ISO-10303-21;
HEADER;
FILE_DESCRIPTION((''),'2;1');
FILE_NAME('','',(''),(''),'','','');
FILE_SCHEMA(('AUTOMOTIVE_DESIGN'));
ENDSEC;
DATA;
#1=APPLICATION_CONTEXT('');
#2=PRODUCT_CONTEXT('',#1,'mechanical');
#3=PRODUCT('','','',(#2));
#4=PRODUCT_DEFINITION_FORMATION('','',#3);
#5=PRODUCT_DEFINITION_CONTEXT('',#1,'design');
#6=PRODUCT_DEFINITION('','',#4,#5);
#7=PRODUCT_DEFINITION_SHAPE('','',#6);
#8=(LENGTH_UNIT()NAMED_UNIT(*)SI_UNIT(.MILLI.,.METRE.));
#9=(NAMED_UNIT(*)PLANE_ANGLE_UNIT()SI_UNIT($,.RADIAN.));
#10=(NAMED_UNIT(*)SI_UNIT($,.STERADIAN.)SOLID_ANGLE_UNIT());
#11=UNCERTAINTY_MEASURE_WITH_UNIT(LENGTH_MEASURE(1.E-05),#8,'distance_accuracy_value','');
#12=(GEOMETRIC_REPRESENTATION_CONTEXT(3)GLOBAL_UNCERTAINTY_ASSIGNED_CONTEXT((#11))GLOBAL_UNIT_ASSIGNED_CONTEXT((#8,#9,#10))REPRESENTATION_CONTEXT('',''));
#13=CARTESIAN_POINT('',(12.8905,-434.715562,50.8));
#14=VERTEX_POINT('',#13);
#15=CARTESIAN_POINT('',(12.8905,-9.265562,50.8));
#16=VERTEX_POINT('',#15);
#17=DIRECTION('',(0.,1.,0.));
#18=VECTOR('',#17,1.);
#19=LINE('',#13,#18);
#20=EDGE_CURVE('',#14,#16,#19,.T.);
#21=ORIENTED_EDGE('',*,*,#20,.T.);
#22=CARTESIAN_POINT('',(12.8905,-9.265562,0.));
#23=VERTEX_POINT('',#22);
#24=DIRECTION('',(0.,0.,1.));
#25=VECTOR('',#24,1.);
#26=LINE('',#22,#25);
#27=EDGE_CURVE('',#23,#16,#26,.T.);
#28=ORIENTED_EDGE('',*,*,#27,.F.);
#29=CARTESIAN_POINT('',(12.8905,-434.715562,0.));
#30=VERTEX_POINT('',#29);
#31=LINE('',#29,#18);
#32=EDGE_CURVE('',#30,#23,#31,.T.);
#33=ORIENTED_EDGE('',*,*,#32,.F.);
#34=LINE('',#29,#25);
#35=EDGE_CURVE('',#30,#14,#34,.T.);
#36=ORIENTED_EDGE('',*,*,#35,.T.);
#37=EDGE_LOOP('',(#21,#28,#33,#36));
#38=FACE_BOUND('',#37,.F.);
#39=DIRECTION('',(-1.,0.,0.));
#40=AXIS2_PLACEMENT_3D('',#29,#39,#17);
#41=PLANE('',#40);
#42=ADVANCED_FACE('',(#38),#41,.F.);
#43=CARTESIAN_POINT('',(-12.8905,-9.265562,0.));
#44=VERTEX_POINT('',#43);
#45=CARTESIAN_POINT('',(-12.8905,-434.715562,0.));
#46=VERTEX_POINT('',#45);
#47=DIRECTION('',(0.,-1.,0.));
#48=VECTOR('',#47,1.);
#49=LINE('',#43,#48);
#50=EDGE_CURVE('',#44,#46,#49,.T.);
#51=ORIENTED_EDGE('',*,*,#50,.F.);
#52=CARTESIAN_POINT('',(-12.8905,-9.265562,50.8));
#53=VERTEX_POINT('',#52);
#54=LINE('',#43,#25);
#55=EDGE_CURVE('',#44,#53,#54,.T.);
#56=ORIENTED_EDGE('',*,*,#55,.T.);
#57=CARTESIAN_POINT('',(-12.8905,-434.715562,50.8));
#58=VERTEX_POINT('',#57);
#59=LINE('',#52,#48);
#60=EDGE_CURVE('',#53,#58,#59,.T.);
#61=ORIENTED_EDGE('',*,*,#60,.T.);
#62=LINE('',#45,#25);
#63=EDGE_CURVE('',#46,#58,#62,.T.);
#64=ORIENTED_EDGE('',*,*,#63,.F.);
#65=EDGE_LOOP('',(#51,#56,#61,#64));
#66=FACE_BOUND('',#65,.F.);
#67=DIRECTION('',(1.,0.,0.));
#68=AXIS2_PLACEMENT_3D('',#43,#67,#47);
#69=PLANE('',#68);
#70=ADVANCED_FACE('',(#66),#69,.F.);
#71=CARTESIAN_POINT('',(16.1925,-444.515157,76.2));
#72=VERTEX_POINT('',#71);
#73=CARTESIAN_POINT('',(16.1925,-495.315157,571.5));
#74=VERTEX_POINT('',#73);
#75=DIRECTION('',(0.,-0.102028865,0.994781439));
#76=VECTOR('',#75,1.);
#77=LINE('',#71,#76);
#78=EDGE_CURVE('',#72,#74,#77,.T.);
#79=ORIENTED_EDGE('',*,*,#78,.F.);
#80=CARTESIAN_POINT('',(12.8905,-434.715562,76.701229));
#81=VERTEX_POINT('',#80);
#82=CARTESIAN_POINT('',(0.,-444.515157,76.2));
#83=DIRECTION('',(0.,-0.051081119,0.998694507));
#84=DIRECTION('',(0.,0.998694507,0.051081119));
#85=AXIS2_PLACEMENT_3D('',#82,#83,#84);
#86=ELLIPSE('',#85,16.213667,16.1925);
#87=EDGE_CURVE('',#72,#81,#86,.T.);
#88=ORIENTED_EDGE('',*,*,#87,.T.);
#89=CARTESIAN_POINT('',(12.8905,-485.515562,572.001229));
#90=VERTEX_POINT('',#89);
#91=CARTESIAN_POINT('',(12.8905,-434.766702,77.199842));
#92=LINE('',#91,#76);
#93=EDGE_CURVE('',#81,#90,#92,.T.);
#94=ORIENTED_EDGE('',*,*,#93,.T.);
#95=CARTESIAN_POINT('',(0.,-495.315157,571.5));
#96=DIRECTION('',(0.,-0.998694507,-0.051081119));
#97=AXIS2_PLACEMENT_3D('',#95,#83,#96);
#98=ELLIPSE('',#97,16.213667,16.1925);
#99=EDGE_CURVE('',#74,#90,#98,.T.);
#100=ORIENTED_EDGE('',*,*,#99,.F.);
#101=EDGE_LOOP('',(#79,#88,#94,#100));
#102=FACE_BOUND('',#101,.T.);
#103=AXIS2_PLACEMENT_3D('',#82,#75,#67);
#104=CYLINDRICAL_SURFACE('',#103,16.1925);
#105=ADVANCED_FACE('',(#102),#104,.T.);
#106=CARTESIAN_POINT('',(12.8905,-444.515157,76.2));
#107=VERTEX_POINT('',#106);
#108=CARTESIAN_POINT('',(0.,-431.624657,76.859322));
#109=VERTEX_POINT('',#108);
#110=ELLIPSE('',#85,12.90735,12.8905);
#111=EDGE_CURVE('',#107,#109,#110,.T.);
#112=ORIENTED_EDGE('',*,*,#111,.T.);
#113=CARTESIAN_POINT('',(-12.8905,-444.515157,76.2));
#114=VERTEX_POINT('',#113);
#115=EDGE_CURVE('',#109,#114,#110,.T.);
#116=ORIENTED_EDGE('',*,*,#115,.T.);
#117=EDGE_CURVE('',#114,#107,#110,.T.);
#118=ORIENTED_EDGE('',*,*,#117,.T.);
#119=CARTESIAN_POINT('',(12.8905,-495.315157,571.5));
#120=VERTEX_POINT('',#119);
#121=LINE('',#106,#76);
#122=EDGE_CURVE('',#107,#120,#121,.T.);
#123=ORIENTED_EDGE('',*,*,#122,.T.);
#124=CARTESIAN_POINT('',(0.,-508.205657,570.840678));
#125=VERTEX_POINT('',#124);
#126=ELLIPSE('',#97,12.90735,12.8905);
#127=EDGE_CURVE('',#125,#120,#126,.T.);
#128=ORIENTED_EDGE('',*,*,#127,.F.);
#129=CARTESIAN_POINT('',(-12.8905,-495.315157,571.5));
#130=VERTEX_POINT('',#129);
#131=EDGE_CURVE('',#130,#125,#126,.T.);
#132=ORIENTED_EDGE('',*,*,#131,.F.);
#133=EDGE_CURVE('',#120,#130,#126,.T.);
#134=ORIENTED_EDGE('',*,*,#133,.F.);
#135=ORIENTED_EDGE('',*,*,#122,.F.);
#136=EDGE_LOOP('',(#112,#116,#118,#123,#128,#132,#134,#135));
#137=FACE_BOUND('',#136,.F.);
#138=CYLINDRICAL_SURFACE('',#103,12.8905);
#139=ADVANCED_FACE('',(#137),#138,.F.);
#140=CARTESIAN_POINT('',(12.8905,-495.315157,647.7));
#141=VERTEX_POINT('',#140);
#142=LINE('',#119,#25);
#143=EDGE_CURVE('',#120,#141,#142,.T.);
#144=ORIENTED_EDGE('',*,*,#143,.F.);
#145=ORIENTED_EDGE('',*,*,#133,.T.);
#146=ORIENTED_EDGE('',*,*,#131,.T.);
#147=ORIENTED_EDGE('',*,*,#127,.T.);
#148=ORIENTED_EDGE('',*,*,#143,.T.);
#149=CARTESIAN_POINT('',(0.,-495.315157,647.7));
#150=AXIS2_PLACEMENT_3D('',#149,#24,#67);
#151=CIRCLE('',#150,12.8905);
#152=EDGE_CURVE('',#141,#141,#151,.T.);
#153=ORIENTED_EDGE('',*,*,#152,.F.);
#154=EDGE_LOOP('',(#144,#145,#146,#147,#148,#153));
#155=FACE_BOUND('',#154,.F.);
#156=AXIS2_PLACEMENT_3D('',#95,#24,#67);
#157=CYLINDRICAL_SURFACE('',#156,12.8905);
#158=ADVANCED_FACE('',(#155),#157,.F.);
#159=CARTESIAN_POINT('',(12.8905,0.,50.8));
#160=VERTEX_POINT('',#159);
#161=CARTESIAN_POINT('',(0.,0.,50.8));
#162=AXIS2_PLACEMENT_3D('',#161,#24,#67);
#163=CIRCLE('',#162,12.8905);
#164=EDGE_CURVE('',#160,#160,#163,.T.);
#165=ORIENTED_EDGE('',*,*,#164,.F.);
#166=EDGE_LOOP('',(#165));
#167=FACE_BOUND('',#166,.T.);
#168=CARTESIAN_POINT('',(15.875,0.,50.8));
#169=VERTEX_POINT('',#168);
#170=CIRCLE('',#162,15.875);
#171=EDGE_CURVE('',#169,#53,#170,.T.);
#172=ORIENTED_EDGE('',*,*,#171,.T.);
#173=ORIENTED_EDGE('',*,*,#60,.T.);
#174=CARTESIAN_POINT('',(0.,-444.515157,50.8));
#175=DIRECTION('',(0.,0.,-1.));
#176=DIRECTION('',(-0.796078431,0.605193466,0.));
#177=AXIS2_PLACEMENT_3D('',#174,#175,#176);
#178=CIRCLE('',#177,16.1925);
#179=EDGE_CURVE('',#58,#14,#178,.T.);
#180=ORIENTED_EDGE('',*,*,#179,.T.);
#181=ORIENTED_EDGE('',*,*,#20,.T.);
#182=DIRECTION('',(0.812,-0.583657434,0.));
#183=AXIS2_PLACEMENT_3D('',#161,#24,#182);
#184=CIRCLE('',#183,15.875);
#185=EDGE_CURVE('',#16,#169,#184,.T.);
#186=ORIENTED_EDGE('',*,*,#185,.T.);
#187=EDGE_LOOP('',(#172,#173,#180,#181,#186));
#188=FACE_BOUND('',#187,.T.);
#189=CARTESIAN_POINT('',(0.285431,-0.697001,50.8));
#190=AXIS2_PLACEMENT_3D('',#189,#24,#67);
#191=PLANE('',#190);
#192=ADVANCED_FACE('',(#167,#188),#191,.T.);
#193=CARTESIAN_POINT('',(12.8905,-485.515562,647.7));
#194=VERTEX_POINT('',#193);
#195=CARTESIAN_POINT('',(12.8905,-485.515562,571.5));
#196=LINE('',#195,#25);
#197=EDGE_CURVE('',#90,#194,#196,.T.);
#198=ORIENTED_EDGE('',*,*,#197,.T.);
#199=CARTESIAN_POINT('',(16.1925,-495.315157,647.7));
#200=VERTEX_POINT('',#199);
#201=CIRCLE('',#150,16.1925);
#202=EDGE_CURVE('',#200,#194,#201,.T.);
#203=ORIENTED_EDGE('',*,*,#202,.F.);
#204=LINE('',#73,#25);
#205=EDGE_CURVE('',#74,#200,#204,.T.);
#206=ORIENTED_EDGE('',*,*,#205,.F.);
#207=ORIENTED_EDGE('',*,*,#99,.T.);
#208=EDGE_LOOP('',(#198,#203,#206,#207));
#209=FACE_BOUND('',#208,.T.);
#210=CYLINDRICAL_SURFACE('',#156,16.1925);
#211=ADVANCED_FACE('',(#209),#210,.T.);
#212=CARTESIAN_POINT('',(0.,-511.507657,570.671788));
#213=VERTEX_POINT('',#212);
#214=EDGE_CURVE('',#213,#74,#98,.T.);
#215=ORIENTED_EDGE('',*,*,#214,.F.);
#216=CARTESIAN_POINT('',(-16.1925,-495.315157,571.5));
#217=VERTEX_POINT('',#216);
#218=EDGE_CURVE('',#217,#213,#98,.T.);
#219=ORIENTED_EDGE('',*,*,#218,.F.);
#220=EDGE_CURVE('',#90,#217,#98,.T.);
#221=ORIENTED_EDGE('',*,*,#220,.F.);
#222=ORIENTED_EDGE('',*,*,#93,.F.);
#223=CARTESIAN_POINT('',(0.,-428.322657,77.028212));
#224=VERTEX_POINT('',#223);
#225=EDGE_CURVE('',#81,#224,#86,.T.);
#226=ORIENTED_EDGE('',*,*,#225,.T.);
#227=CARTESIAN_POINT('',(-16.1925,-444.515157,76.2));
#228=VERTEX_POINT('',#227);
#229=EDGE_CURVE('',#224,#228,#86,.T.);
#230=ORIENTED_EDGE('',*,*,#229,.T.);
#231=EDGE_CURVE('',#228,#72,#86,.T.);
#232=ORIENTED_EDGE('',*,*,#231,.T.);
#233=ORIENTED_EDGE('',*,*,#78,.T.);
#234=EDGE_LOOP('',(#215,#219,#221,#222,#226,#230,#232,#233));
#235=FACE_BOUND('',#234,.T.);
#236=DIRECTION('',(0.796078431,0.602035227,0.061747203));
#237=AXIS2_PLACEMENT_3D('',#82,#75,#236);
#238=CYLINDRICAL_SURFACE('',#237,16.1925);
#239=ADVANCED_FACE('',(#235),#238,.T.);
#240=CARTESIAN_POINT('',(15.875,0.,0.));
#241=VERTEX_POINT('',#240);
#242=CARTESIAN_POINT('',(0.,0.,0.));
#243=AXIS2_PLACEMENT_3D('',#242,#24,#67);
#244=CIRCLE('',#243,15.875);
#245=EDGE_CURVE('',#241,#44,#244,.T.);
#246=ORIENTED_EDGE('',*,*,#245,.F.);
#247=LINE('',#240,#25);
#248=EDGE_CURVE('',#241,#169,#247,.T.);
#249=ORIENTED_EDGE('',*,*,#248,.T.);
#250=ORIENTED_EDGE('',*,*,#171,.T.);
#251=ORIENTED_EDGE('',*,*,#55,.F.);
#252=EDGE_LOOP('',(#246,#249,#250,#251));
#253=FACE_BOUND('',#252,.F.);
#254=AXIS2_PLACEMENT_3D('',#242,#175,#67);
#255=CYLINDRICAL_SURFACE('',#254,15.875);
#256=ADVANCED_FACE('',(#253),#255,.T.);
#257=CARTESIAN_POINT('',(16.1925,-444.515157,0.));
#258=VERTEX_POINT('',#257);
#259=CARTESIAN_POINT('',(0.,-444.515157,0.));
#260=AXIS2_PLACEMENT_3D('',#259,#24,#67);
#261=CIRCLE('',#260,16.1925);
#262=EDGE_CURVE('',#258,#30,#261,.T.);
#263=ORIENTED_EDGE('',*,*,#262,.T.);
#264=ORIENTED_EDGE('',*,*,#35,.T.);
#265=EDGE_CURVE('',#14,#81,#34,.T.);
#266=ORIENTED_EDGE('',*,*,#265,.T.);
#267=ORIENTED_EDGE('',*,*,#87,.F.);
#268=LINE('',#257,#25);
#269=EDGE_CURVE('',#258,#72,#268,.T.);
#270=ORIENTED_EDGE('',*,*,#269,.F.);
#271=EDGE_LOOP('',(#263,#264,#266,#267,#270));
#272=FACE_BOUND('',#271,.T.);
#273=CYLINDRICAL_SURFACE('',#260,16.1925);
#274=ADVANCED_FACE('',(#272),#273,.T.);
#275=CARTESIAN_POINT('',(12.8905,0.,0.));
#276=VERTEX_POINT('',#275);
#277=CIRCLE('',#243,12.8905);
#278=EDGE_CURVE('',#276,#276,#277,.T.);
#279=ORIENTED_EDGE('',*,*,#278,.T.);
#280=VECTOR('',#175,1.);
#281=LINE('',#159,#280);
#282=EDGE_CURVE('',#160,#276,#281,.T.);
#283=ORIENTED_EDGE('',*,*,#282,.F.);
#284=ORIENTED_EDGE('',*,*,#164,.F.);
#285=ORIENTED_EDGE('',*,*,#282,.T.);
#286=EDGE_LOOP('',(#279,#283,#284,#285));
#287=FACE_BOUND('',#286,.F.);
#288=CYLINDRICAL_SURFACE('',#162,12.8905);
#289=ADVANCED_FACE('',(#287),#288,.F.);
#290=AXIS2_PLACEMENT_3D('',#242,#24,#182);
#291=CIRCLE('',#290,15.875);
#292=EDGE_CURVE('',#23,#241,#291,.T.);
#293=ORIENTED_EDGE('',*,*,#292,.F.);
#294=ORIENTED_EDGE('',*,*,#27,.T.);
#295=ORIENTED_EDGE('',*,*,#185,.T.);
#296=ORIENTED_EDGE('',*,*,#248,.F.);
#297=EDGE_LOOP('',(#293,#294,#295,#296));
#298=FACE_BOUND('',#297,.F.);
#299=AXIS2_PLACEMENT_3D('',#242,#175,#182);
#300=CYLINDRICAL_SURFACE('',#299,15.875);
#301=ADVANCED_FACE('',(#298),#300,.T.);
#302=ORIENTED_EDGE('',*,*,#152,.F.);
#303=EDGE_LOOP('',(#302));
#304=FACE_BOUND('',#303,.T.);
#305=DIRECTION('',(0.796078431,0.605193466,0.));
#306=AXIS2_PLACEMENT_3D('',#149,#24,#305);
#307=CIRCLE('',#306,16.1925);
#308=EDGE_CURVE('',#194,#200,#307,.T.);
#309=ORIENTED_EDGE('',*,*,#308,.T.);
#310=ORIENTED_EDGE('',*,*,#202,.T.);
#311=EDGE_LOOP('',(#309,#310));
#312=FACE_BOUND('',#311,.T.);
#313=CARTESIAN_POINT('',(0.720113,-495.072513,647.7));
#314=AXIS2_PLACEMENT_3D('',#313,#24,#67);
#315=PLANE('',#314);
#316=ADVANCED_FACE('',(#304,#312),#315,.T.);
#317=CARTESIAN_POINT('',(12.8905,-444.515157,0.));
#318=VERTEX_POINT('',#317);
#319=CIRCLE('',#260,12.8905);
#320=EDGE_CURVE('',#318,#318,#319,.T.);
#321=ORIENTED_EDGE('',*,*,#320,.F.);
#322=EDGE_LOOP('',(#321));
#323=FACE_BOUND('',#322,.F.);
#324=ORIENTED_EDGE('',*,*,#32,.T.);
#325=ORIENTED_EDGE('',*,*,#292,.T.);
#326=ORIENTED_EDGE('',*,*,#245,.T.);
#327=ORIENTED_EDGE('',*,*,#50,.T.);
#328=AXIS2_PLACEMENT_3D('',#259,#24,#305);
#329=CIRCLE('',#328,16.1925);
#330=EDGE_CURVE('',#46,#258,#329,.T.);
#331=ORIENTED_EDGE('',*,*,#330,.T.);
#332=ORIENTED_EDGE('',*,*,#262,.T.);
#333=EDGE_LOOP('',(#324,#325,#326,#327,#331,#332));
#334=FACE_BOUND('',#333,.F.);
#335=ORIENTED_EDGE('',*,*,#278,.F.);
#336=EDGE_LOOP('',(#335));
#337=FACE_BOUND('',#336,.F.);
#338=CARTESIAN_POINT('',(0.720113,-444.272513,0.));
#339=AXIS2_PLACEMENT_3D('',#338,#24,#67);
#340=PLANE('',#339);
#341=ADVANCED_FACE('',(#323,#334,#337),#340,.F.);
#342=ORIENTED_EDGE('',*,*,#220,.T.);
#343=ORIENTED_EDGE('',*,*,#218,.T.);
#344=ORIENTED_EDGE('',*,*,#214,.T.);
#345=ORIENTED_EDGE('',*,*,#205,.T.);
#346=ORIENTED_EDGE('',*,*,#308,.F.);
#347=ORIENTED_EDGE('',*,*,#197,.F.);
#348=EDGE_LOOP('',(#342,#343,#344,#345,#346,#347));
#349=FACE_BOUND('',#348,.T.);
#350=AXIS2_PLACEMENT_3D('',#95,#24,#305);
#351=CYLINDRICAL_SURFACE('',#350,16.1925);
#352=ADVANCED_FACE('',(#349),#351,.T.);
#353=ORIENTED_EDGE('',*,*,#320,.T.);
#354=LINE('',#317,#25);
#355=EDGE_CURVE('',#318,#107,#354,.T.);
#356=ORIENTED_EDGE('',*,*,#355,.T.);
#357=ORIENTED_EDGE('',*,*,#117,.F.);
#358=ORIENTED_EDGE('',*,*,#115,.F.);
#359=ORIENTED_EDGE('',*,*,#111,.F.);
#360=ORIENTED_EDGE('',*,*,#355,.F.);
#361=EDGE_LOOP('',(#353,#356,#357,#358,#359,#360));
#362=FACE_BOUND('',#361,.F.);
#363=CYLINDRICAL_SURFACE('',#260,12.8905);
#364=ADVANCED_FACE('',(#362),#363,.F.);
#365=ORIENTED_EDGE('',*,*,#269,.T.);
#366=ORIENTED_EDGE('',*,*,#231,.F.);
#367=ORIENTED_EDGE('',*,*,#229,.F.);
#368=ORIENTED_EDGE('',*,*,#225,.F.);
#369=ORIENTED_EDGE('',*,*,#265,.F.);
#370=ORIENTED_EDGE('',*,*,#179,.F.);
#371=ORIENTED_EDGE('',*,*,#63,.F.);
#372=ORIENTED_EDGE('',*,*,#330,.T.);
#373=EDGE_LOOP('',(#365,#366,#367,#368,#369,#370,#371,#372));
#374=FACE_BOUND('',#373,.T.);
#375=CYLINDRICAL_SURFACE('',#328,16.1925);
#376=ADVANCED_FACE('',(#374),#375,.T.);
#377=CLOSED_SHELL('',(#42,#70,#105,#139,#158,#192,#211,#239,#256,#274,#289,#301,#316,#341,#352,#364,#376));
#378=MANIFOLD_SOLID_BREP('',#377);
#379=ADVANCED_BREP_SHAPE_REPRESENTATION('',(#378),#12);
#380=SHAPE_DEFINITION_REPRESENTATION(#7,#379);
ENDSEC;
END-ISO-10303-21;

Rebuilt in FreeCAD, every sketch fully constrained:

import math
import FreeCAD as App
import Part
import Sketcher

V = App.Vector
Q = App.Units.Quantity

doc = App.newDocument("Part")
body = doc.addObject("PartDesign::Body", "Body")

# Sketch on XY plane
sketch1 = doc.addObject("Sketcher::SketchObject", "Sketch")
body.addObject(sketch1)
sketch1.AttachmentSupport = (doc.XY_Plane, [""])
sketch1.MapMode = "FlatFace"
sketch1.addGeometry(Part.ArcOfCircle(Part.Circle(V(0, 0, 0), V(0, 0, 1), 16), math.radians(-36), math.radians(0)), False)
sketch1.addGeometry(Part.ArcOfCircle(Part.Circle(V(0, 0, 0), V(0, 0, 1), 16), math.radians(0), math.radians(216)), False)
sketch1.addGeometry(Part.LineSegment(V(-13, -9, 0), V(-13, -435, 0)), False)
sketch1.addGeometry(Part.ArcOfCircle(Part.Circle(V(0, -445, 0), V(0, 0, 1), 16), math.radians(37), math.radians(143)), False)
sketch1.addGeometry(Part.LineSegment(V(13, -435, 0), V(13, -9, 0)), False)
sketch1.addConstraint(Sketcher.Constraint("Tangent", 0, 2, 1, 1))
sketch1.addConstraint(Sketcher.Constraint("Coincident", 1, 2, 2, 1))
sketch1.addConstraint(Sketcher.Constraint("Coincident", 2, 2, 3, 2))
sketch1.addConstraint(Sketcher.Constraint("Coincident", 3, 1, 4, 1))
sketch1.addConstraint(Sketcher.Constraint("Coincident", 4, 2, 0, 1))
sketch1.addConstraint(Sketcher.Constraint("Vertical", 2))
sketch1.addConstraint(Sketcher.Constraint("Vertical", 4))
sketch1.addConstraint(Sketcher.Constraint("Coincident", 0, 3, -1, 1))
sketch1.addConstraint(Sketcher.Constraint("Equal", 0, 1))
sketch1.addConstraint(Sketcher.Constraint("Symmetric", 2, 2, 3, 1, -2))
sketch1.addConstraint(Sketcher.Constraint("PointOnObject", 0, 2, -1))
sketch1.addConstraint(Sketcher.Constraint("Radius", 0, Q("0.625 in")))
sketch1.addConstraint(Sketcher.Constraint("DistanceY", 2, 2, 2, 1, Q("16.75 in")))
sketch1.addConstraint(Sketcher.Constraint("Radius", 3, Q("0.6375 in")))
sketch1.addConstraint(Sketcher.Constraint("DistanceX", 2, 2, 3, 1, Q("1.015 in")))
pad1 = doc.addObject("PartDesign::Pad", "Pad")
body.addObject(pad1)
pad1.Profile = sketch1
pad1.Length = Q("2 in")

# Sketch on XY plane
sketch2 = doc.addObject("Sketcher::SketchObject", "Sketch001")
body.addObject(sketch2)
sketch2.AttachmentSupport = (doc.XY_Plane, [""])
sketch2.MapMode = "FlatFace"
sketch2.AttachmentOffset = App.Placement(V(0, 0, 2 * 25.4), App.Rotation())
sketch2.addGeometry(Part.Circle(V(0, 0, 0), V(0, 0, 1), 13), False)
sketch2.addConstraint(Sketcher.Constraint("Coincident", 0, 3, -1, 1))
sketch2.addConstraint(Sketcher.Constraint("Diameter", 0, Q("1.015 in")))
pocket1 = doc.addObject("PartDesign::Pocket", "Pocket")
body.addObject(pocket1)
pocket1.Profile = sketch2
pocket1.Type = "ThroughAll"

# Sketch on XY plane
sketch3 = doc.addObject("Sketcher::SketchObject", "Sketch002")
body.addObject(sketch3)
sketch3.AttachmentSupport = (doc.XY_Plane, [""])
sketch3.MapMode = "FlatFace"
sketch3.addGeometry(Part.ArcOfCircle(Part.Circle(V(0, -445, 0), V(0, 0, 1), 16), math.radians(37), math.radians(360)), False)
sketch3.addGeometry(Part.ArcOfCircle(Part.Circle(V(0, -445, 0), V(0, 0, 1), 16), math.radians(0), math.radians(37)), False)
sketch3.addGeometry(Part.Circle(V(0, -445, 0), V(0, 0, 1), 13), False)
sketch3.addConstraint(Sketcher.Constraint("Tangent", 0, 1, 1, 2))
sketch3.addConstraint(Sketcher.Constraint("Coincident", 1, 1, 0, 2))
sketch3.addConstraint(Sketcher.Constraint("Coincident", 2, 3, 0, 3))
sketch3.addConstraint(Sketcher.Constraint("PointOnObject", 0, 3, -2))
sketch3.addConstraint(Sketcher.Constraint("Horizontal", 2, 3, 1, 1))
sketch3.addConstraint(Sketcher.Constraint("Diameter", 2, Q("1.015 in")))
sketch3.addConstraint(Sketcher.Constraint("Radius", 0, Q("0.6375 in")))
sketch3.addConstraint(Sketcher.Constraint("DistanceX", 0, 1, 1, 1, Q("0.13 in")))
sketch3.addConstraint(Sketcher.Constraint("DistanceY", 0, 1, -1, 1, Q("434.715562 mm")))

# Sketch on YZ plane
sketch4 = doc.addObject("Sketcher::SketchObject", "Sketch003")
body.addObject(sketch4)
sketch4.AttachmentSupport = (doc.YZ_Plane, [""])
sketch4.MapMode = "FlatFace"
sketch4.addGeometry(Part.LineSegment(V(-445, 0, 0), V(-445, 76, 0)), False)
sketch4.addGeometry(Part.LineSegment(V(-445, 76, 0), V(-495, 572, 0)), False)
sketch4.addGeometry(Part.LineSegment(V(-495, 572, 0), V(-495, 648, 0)), False)
sketch4.addConstraint(Sketcher.Constraint("Coincident", 0, 2, 1, 1))
sketch4.addConstraint(Sketcher.Constraint("Coincident", 1, 2, 2, 1))
sketch4.addConstraint(Sketcher.Constraint("Vertical", 0))
sketch4.addConstraint(Sketcher.Constraint("Vertical", 2))
sketch4.addConstraint(Sketcher.Constraint("PointOnObject", 0, 1, -1))
sketch4.addConstraint(Sketcher.Constraint("Equal", 0, 2))
sketch4.addConstraint(Sketcher.Constraint("DistanceY", 0, 1, 0, 2, Q("3 in")))
sketch4.addConstraint(Sketcher.Constraint("DistanceX", 1, 2, 0, 2, Q("2 in")))
sketch4.addConstraint(Sketcher.Constraint("DistanceY", -1, 1, 1, 2, Q("22.5 in")))
sketch4.addConstraint(Sketcher.Constraint("DistanceX", 0, 1, -1, 1, Q("444.515157 mm")))
doc.recompute()

additivepipe = doc.addObject("PartDesign::AdditivePipe", "AdditivePipe")
body.addObject(additivepipe)
additivepipe.Profile = sketch3
additivepipe.Spine = (sketch4, ["Edge1", "Edge2", "Edge3"])
additivepipe.Transition = "Right corner"

doc.recompute()
